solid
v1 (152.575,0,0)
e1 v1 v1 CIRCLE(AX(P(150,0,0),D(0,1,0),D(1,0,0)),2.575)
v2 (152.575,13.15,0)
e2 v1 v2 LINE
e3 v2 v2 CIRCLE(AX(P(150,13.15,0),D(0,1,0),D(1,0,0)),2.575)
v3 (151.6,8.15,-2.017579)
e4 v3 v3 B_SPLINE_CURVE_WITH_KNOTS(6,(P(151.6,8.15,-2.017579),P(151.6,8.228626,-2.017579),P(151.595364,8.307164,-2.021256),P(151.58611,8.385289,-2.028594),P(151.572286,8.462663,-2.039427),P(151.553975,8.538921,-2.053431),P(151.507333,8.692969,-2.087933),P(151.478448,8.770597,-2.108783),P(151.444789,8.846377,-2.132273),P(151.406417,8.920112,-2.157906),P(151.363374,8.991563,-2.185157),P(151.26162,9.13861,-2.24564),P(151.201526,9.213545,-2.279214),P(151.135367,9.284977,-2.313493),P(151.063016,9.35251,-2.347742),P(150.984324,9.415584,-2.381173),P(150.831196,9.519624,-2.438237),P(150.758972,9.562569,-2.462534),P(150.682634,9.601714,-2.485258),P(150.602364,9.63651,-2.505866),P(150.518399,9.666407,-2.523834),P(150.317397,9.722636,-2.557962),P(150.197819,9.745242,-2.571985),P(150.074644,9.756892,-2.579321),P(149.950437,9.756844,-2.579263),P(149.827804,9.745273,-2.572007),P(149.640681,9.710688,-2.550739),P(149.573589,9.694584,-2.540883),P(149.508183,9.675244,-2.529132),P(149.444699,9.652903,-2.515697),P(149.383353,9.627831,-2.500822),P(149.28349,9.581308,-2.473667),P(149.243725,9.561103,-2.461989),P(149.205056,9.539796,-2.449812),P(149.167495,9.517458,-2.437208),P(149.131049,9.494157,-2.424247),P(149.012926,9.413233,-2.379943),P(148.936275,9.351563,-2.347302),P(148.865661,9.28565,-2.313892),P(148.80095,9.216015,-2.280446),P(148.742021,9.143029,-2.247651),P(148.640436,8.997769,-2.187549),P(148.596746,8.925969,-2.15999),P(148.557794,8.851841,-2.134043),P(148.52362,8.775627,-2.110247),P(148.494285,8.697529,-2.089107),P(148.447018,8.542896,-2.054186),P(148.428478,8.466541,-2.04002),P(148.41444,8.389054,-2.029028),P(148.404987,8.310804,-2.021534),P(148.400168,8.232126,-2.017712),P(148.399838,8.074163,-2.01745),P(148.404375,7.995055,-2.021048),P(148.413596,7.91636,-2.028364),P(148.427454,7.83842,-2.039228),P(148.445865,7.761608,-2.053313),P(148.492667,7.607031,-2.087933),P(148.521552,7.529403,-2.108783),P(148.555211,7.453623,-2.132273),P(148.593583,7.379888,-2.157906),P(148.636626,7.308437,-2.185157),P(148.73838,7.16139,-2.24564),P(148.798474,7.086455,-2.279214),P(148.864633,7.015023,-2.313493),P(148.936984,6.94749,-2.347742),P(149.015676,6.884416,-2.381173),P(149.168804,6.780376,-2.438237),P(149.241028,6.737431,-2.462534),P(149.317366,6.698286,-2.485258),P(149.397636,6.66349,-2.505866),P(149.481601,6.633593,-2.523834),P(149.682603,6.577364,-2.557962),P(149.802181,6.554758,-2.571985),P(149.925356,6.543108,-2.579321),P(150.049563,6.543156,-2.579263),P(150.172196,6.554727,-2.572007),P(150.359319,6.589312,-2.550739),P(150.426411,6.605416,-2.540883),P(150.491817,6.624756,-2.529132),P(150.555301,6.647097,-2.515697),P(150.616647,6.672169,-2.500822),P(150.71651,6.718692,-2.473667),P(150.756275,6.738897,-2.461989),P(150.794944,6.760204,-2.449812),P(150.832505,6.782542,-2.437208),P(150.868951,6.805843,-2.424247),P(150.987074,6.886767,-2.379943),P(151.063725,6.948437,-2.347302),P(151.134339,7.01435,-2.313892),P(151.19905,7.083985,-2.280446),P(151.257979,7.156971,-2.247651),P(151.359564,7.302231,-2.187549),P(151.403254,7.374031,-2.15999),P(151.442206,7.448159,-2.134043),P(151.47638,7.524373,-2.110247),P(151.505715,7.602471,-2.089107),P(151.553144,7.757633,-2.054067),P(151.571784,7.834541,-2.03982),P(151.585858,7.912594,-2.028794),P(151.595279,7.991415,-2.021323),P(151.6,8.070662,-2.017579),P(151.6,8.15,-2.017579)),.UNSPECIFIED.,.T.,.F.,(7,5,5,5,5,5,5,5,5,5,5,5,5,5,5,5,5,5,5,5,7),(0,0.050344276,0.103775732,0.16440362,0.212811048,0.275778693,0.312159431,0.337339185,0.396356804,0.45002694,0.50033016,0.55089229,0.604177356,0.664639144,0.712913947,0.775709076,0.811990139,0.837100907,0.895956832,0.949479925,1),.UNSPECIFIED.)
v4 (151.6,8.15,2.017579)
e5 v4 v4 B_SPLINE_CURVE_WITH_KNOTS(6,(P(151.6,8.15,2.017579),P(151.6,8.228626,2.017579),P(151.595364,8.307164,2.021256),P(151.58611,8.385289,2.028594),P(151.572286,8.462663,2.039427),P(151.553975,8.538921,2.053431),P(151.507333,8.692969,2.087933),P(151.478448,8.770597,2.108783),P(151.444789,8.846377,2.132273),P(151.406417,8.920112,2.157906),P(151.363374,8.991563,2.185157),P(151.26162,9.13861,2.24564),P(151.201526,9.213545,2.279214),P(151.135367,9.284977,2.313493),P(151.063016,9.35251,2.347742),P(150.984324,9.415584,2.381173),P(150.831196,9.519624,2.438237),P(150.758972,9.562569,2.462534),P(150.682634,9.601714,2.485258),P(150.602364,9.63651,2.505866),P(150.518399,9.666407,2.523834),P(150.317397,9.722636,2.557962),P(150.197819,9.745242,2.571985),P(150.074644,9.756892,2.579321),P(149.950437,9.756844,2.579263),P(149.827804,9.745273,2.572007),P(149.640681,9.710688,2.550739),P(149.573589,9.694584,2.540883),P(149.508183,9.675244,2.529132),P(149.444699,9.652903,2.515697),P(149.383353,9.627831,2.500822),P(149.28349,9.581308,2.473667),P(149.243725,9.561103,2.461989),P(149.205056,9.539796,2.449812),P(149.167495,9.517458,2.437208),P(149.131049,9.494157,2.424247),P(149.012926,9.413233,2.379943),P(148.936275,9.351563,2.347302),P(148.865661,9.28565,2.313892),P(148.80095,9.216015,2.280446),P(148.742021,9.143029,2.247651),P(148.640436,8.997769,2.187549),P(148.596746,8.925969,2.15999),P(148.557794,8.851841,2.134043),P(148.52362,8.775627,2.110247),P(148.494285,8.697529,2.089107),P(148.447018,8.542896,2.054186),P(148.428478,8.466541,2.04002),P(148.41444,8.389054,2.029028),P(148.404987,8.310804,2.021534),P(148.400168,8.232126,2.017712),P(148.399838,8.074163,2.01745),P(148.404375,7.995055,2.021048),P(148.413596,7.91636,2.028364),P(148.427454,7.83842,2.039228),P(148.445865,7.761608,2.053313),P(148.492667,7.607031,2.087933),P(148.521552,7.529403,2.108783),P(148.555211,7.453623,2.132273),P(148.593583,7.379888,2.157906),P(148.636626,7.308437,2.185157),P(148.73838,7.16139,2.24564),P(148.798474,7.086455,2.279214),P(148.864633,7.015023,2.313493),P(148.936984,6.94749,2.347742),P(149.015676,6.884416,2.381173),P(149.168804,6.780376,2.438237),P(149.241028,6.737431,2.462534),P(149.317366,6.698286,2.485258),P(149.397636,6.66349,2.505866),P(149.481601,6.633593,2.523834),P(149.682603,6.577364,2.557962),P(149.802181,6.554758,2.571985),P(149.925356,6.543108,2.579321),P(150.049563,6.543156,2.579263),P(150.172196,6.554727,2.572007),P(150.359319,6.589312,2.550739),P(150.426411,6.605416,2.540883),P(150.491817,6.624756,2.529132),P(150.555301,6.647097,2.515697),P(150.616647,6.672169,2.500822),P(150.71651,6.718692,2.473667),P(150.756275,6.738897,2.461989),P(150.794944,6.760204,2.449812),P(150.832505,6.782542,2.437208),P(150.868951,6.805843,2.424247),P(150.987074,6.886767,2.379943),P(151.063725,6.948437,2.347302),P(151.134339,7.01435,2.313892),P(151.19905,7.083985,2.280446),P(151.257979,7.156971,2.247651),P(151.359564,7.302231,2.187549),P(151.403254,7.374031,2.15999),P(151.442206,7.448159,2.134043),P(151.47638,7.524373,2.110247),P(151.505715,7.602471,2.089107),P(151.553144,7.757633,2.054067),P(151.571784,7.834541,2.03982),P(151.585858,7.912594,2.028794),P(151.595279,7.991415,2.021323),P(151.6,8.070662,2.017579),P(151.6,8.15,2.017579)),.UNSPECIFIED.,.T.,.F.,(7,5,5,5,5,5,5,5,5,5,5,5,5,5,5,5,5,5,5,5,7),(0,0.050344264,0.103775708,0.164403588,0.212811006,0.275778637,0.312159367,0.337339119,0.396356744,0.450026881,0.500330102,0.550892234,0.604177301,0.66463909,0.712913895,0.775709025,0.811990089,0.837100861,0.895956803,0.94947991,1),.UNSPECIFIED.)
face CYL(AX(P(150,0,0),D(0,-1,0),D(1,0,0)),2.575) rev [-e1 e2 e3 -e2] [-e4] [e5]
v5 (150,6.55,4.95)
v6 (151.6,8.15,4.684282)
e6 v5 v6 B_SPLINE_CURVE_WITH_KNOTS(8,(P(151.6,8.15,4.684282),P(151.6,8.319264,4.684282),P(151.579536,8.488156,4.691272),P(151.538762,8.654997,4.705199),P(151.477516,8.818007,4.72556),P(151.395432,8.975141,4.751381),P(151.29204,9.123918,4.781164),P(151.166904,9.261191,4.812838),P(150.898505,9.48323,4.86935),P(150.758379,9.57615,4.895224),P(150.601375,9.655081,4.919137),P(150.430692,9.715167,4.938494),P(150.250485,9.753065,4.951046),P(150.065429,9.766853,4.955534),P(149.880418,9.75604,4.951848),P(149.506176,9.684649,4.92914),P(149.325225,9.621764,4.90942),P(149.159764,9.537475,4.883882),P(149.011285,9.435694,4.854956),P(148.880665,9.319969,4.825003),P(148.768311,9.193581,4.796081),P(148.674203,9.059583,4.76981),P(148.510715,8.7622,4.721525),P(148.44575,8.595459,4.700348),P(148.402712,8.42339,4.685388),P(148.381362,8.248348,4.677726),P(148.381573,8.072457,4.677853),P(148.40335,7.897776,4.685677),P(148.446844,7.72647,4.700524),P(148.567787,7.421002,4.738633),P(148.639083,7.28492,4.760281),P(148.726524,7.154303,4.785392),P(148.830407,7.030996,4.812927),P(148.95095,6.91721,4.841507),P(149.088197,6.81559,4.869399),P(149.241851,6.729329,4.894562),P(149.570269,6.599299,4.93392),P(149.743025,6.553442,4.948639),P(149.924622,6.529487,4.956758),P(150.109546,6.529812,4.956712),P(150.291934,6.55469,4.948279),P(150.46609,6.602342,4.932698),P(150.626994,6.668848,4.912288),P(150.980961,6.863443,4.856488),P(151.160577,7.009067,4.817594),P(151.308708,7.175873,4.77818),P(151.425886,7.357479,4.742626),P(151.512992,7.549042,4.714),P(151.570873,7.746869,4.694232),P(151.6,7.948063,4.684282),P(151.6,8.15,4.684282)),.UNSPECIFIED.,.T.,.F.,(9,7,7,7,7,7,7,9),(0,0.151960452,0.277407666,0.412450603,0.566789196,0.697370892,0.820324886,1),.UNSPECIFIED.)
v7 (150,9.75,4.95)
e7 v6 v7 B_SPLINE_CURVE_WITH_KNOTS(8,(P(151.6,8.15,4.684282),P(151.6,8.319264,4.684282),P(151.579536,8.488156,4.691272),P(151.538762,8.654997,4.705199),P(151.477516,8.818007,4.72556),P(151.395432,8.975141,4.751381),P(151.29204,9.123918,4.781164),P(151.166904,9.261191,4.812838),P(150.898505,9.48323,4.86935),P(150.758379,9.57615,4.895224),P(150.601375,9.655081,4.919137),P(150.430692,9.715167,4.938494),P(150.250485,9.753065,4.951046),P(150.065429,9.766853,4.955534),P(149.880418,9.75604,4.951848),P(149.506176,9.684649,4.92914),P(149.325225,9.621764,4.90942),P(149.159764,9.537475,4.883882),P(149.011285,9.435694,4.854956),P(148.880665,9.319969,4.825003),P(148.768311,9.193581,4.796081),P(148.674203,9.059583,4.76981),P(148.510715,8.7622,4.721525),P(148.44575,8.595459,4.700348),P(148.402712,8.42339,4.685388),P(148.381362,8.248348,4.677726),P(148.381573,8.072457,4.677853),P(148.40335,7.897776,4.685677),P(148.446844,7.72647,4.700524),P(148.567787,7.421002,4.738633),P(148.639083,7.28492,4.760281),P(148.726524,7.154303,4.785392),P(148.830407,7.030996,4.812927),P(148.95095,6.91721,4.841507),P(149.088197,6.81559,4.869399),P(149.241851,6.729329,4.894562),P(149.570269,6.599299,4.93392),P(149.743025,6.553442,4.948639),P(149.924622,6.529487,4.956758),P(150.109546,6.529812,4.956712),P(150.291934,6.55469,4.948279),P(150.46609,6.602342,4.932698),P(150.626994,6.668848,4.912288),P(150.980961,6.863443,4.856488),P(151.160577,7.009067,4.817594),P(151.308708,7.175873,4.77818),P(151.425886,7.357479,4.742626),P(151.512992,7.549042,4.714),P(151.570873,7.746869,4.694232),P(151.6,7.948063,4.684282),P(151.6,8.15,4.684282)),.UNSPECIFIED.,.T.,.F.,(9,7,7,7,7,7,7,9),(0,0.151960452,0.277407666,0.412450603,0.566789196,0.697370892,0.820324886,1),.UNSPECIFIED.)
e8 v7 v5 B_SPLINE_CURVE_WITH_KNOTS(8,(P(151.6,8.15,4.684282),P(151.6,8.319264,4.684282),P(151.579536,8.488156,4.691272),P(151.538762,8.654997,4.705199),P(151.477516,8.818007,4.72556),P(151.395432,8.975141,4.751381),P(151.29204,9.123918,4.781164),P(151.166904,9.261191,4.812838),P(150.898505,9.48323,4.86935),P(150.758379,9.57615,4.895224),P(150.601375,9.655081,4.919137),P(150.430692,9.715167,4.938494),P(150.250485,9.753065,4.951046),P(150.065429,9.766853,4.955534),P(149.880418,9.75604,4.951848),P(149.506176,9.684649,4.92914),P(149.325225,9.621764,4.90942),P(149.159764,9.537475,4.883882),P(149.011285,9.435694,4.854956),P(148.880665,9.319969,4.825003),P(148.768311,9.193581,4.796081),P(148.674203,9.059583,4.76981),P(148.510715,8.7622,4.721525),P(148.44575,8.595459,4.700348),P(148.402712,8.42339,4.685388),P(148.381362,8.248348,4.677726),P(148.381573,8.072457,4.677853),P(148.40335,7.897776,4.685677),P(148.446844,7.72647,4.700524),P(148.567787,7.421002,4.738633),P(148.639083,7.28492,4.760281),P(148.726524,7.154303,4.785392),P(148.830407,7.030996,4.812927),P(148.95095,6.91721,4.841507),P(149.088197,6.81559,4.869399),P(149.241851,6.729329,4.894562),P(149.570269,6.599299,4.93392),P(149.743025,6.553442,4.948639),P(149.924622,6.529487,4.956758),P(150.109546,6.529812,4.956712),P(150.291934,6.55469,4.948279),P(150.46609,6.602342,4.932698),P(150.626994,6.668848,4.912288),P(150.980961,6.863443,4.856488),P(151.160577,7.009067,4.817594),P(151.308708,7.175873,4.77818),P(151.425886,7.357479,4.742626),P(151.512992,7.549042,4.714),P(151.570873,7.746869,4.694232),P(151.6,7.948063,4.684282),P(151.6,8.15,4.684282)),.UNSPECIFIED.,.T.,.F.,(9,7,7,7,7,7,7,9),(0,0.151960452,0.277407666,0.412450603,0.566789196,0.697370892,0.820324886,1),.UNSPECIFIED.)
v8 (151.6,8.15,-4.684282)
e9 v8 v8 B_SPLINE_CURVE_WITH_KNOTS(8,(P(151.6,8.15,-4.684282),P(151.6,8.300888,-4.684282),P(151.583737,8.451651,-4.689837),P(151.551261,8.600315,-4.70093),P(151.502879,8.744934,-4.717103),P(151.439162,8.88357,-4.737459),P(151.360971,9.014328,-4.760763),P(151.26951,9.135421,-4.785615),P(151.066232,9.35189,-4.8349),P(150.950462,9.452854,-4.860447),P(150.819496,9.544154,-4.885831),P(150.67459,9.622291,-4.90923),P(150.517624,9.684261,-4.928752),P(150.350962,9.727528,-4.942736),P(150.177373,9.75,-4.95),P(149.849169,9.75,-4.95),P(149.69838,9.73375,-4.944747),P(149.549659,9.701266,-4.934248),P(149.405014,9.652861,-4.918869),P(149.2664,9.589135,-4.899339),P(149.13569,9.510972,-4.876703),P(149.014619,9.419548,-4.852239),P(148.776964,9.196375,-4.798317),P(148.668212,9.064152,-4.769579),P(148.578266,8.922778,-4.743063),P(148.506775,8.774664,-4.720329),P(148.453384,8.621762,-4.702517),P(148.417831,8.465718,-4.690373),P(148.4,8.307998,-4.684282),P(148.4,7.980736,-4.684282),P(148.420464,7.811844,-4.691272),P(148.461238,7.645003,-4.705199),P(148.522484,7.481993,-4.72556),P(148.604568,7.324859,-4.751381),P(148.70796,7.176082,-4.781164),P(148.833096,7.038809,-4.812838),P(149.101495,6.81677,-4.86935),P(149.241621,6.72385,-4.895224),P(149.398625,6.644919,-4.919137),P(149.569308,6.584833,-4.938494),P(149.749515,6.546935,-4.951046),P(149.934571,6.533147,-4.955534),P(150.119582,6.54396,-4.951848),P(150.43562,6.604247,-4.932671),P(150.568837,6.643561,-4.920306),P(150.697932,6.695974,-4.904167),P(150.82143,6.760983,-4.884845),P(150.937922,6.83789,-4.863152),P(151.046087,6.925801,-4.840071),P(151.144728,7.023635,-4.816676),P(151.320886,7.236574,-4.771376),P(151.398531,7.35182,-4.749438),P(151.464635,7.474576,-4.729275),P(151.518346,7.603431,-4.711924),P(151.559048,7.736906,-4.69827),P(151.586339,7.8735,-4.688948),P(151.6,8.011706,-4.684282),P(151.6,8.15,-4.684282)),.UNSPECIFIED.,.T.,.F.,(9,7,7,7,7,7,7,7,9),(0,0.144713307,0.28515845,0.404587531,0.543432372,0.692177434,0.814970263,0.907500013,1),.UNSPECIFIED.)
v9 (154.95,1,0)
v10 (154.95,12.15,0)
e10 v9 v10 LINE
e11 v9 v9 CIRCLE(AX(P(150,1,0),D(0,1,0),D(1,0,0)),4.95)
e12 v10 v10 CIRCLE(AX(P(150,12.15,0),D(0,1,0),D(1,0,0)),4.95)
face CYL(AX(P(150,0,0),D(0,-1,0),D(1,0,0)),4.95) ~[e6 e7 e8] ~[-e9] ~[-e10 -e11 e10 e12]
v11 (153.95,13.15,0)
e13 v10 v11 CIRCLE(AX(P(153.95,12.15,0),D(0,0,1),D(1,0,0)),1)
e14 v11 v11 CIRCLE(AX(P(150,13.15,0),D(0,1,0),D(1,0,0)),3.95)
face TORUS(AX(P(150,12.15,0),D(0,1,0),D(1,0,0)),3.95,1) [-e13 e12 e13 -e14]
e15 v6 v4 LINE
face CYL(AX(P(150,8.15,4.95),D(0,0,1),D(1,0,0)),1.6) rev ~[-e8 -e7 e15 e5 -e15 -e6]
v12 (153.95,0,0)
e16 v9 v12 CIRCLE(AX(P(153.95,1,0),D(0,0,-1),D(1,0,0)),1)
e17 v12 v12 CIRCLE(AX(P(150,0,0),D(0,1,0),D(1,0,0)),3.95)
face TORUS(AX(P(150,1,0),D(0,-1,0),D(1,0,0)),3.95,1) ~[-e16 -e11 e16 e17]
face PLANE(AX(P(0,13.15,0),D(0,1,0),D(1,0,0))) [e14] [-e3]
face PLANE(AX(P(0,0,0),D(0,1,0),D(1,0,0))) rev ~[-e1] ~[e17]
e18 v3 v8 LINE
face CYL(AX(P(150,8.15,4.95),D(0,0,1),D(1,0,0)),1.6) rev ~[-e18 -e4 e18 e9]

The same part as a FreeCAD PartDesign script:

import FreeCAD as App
import Part
import Sketcher
from FreeCAD import Vector
Q = App.Units.Quantity


def edges_at(feature, points):
    """Names of the edges that pass closest to the given points."""
    edges = feature.Shape.Edges
    near = lambda p: min(range(len(edges)), key=lambda i: edges[i].distToShape(Part.Vertex(*p))[0])
    return sorted({f"Edge{near(p) + 1}" for p in points})

doc = App.newDocument("Part")
params = doc.addObject("Spreadsheet::Sheet", "Params")
for row, (alias, value) in enumerate([
    ("sketch1_diameter", "9.9 mm"),
    ("sketch1_diameter2", "5.15 mm"),
    ("pad1_length", "13.15 mm"),
    ("sketch2_diameter", "3.2 mm"),
    ("pocket1_length", "16 mm"),
    ("fillet_radius", "1 mm"),
], start=1):
    params.set(f"A{row}", alias)
    params.set(f"B{row}", "=" + value)
    params.setAlias(f"B{row}", alias)

body = doc.addObject("PartDesign::Body", "Body")

# Sketch on XZ plane
sketch1 = body.newObject("Sketcher::SketchObject", "Sketch")
sketch1.AttachmentSupport = (doc.getObject("XZ_Plane"), [""])
sketch1.MapMode = "FlatFace"
sketch1.addGeometry([
    Part.Circle(Vector(150, 0, 0), Vector(0, 0, 1), 5),
    Part.Circle(Vector(150, 0, 0), Vector(0, 0, 1), 2.6),
], False)
sketch1.addConstraint([
    Sketcher.Constraint("Coincident", 1, 3, 0, 3),
    Sketcher.Constraint("PointOnObject", 0, 3, -1),
    Sketcher.Constraint("Diameter", 0, Q("9.9 mm")),
    Sketcher.Constraint("Diameter", 1, Q("5.15 mm")),
    Sketcher.Constraint("DistanceX", -1, 1, 0, 3, Q("150 mm")),
])
sketch1.setExpression("Constraints[2]", "Params.sketch1_diameter")
sketch1.setExpression("Constraints[3]", "Params.sketch1_diameter2")
pad1 = body.newObject("PartDesign::Pad", "Pad")
pad1.Profile = sketch1
pad1.setExpression("Length", "Params.pad1_length")
pad1.Reversed = True

# Sketch on XY plane
sketch2 = body.newObject("Sketcher::SketchObject", "Sketch001")
sketch2.AttachmentSupport = (doc.getObject("XY_Plane"), [""])
sketch2.MapMode = "FlatFace"
sketch2.AttachmentOffset = App.Placement(Vector(0, 0, 4.95), App.Rotation())
sketch2.addGeometry(Part.Circle(Vector(150, 8.2, 0), Vector(0, 0, 1), 1.6), False)
sketch2.addConstraint([
    Sketcher.Constraint("Diameter", 0, Q("3.2 mm")),
    Sketcher.Constraint("DistanceX", -1, 1, 0, 3, Q("150 mm")),
    Sketcher.Constraint("DistanceY", -1, 1, 0, 3, Q("8.15 mm")),
])
sketch2.setExpression("Constraints[0]", "Params.sketch2_diameter")
pocket1 = body.newObject("PartDesign::Pocket", "Pocket")
pocket1.Profile = sketch2
pocket1.setExpression("Length", "Params.pocket1_length")
doc.recompute()

fillet = body.newObject("PartDesign::Fillet", "Fillet")
fillet.Base = (pocket1, edges_at(pocket1, [(145.385, 13.15, 1.79), (145.385, 0, 1.79)]))
fillet.setExpression("Radius", "Params.fillet_radius")

doc.recompute()
